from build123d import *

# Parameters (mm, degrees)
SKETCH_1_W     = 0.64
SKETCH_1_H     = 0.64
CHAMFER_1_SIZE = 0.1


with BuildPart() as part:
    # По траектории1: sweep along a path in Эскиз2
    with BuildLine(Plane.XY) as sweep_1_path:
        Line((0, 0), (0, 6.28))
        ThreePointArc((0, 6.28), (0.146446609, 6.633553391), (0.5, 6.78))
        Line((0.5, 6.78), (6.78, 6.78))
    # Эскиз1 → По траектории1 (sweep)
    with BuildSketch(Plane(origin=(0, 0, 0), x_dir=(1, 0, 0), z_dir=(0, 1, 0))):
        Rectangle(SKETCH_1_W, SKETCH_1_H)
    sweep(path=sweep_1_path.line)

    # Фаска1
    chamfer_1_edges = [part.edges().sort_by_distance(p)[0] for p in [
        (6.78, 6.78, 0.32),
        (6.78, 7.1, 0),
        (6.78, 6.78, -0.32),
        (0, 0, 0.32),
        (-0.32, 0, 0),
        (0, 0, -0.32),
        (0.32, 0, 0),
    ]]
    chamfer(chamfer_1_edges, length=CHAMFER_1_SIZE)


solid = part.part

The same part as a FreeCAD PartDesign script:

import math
import FreeCAD as App
import Part
import Sketcher

V = App.Vector


def edges_at(feature, points):
    """Names of the edges that pass closest to the given points."""
    edges = feature.Shape.Edges
    near = lambda p: min(range(len(edges)), key=lambda i: edges[i].distToShape(Part.Vertex(*p))[0])
    return sorted({f"Edge{near(p) + 1}" for p in points})

doc = App.newDocument("Part")
body = doc.addObject("PartDesign::Body", "Body")

# Sketch on XZ plane
sketch1 = body.newObject("Sketcher::SketchObject", "Sketch")
sketch1.AttachmentSupport = (doc.getObject("XZ_Plane"), [""])
sketch1.MapMode = "FlatFace"
sketch1.addGeometry([
    Part.LineSegment(V(-0.32, -0.32, 0), V(-0.32, 0.32, 0)),
    Part.LineSegment(V(-0.32, 0.32, 0), V(0.32, 0.32, 0)),
    Part.LineSegment(V(0.32, 0.32, 0), V(0.32, -0.32, 0)),
    Part.LineSegment(V(0.32, -0.32, 0), V(-0.32, -0.32, 0)),
], False)
sketch1.addConstraint([
    Sketcher.Constraint("Coincident", 0, 2, 1, 1),
    Sketcher.Constraint("Coincident", 1, 2, 2, 1),
    Sketcher.Constraint("Coincident", 2, 2, 3, 1),
    Sketcher.Constraint("Coincident", 3, 2, 0, 1),
    Sketcher.Constraint("Vertical", 0),
    Sketcher.Constraint("Horizontal", 1),
    Sketcher.Constraint("Vertical", 2),
    Sketcher.Constraint("Horizontal", 3),
    Sketcher.Constraint("Symmetric", 0, 2, 2, 2, -1, 1),
    Sketcher.Constraint("Equal", 3, 0),
    Sketcher.Constraint("DistanceX", 1, 1, 1, 2, 0.64),
])

# Sketch on XY plane
sketch2 = body.newObject("Sketcher::SketchObject", "Sketch001")
sketch2.AttachmentSupport = (doc.getObject("XY_Plane"), [""])
sketch2.MapMode = "FlatFace"
sketch2.addGeometry([
    Part.LineSegment(V(0, 0, 0), V(0, 6.28, 0)),
    Part.ArcOfCircle(Part.Circle(V(0.5, 6.28, 0), V(0, 0, 1), 0.5), math.radians(90), math.radians(180)),
    Part.LineSegment(V(0.5, 6.78, 0), V(6.78, 6.78, 0)),
], False)
sketch2.addConstraint([
    Sketcher.Constraint("Tangent", 0, 2, 1, 2),
    Sketcher.Constraint("Tangent", 1, 1, 2, 1),
    Sketcher.Constraint("Vertical", 0),
    Sketcher.Constraint("Horizontal", 2),
    Sketcher.Constraint("Coincident", 0, 1, -1, 1),
    Sketcher.Constraint("Equal", 2, 0),
    Sketcher.Constraint("Radius", 1, 0.5),
    Sketcher.Constraint("DistanceX", 2, 1, 2, 2, 6.28),
])
doc.recompute()

additivepipe = body.newObject("PartDesign::AdditivePipe", "AdditivePipe")
additivepipe.Profile = sketch1
additivepipe.Spine = (sketch2, ["Edge1", "Edge2", "Edge3"])
doc.recompute()

chamfer = body.newObject("PartDesign::Chamfer", "Chamfer")
chamfer.Base = (additivepipe, edges_at(additivepipe, [
    (6.78, 6.78, 0.32),
    (6.78, 7.1, 0),
    (6.78, 6.78, -0.32),
    (0, 0, 0.32),
    (-0.32, 0, 0),
    (0, 0, -0.32),
    (0.32, 0, 0),
]))
chamfer.Size = 0.1

doc.recompute()
